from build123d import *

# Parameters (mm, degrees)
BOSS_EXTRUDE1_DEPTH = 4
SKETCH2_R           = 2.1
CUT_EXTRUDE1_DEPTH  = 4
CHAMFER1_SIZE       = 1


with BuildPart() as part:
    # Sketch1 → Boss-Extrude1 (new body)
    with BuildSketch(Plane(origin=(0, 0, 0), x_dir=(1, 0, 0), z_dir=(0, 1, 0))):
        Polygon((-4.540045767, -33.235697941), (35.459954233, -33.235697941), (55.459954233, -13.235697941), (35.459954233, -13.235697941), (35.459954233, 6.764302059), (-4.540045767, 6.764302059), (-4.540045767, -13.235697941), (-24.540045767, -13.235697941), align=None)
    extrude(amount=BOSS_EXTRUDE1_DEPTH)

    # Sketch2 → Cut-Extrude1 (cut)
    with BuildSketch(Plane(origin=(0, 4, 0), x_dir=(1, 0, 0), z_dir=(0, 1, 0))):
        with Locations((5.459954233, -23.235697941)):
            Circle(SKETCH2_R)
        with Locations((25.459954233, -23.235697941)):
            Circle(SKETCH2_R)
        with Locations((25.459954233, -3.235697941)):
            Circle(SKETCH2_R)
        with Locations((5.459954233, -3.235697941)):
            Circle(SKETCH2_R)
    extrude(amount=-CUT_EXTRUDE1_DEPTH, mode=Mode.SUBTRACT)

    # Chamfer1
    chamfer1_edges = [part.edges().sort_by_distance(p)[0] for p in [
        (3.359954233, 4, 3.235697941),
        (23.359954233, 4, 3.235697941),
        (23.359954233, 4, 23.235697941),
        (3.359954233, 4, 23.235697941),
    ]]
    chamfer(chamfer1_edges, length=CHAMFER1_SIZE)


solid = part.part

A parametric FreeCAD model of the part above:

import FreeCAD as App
import Part
import Sketcher
Q = App.Units.Quantity


def edges_at(feature, points):
    """Names of the edges that pass closest to the given points."""
    edges = feature.Shape.Edges
    near = lambda p: min(range(len(edges)), key=lambda i: edges[i].distToShape(Part.Vertex(*p))[0])
    return sorted({f"Edge{near(p) + 1}" for p in points})

doc = App.newDocument("Part")
params = doc.addObject("Spreadsheet::Sheet", "Params")
for row, (alias, value) in enumerate([
    ("sketch1_width", "40 mm"),
    ("sketch1_width2", "20 mm"),
    ("pad1_length", "4 mm"),
    ("sketch2_diameter", "4.2 mm"),
    ("pocket1_length", "4 mm"),
    ("chamfer_size", "1 mm"),
], start=1):
    params.set(f"A{row}", alias)
    params.set(f"B{row}", "=" + value)
    params.setAlias(f"B{row}", alias)

body = doc.addObject("PartDesign::Body", "Body")

sketch1 = body.newObject("Sketcher::SketchObject", "Sketch")
sketch1.AttachmentSupport = (doc.getObject("XZ_Plane"), [""])
sketch1.MapMode = "FlatFace"
sketch1.addGeometry([
    Part.LineSegment(App.Vector(-5, 33, 0), App.Vector(35, 33, 0)),
    Part.LineSegment(App.Vector(35, 33, 0), App.Vector(55, 13, 0)),
    Part.LineSegment(App.Vector(55, 13, 0), App.Vector(35, 13, 0)),
    Part.LineSegment(App.Vector(35, 13, 0), App.Vector(35, -7, 0)),
    Part.LineSegment(App.Vector(35, -7, 0), App.Vector(-5, -7, 0)),
    Part.LineSegment(App.Vector(-5, -7, 0), App.Vector(-5, 13, 0)),
    Part.LineSegment(App.Vector(-5, 13, 0), App.Vector(-25, 13, 0)),
    Part.LineSegment(App.Vector(-25, 13, 0), App.Vector(-5, 33, 0)),
], False)
sketch1.addConstraint([
    Sketcher.Constraint("Coincident", 0, 2, 1, 1),
    Sketcher.Constraint("Coincident", 1, 2, 2, 1),
    Sketcher.Constraint("Coincident", 2, 2, 3, 1),
    Sketcher.Constraint("Coincident", 3, 2, 4, 1),
    Sketcher.Constraint("Coincident", 4, 2, 5, 1),
    Sketcher.Constraint("Coincident", 5, 2, 6, 1),
    Sketcher.Constraint("Coincident", 6, 2, 7, 1),
    Sketcher.Constraint("Coincident", 7, 2, 0, 1),
    Sketcher.Constraint("Horizontal", 0),
    Sketcher.Constraint("Horizontal", 2),
    Sketcher.Constraint("Vertical", 3),
    Sketcher.Constraint("Horizontal", 4),
    Sketcher.Constraint("Vertical", 5),
    Sketcher.Constraint("Horizontal", 6),
    Sketcher.Constraint("Perpendicular", 1, 7),
    Sketcher.Constraint("Horizontal", 2, 2, 5, 2),
    Sketcher.Constraint("Vertical", 0, 2, 2, 2),
    Sketcher.Constraint("Vertical", 5, 2, 7, 2),
    Sketcher.Constraint("Equal", 2, 6),
    Sketcher.Constraint("Equal", 6, 3),
    Sketcher.Constraint("DistanceX", 0, 1, 0, 2, Q("40 mm")),
    Sketcher.Constraint("DistanceX", 2, 2, 2, 1, Q("20 mm")),
    Sketcher.Constraint("DistanceX", -1, 1, 0, 2, Q("35.459954 mm")),
    Sketcher.Constraint("DistanceY", -1, 1, 0, 2, Q("33.235698 mm")),
])
sketch1.setExpression("Constraints[20]", "Params.sketch1_width")
sketch1.setExpression("Constraints[21]", "Params.sketch1_width2")
pad1 = body.newObject("PartDesign::Pad", "Pad")
pad1.Profile = sketch1
pad1.setExpression("Length", "Params.pad1_length")
pad1.Reversed = True

sketch2 = body.newObject("Sketcher::SketchObject", "Sketch001")
sketch2.AttachmentSupport = (doc.getObject("XZ_Plane"), [""])
sketch2.MapMode = "FlatFace"
sketch2.AttachmentOffset = App.Placement(App.Vector(0, 0, -4), App.Rotation())
sketch2.addGeometry([
    Part.Circle(App.Vector(5.5, 23.2, 0), App.Vector(0, 0, 1), 2.1),
    Part.Circle(App.Vector(25.5, 23.2, 0), App.Vector(0, 0, 1), 2.1),
    Part.Circle(App.Vector(25.5, 3.2, 0), App.Vector(0, 0, 1), 2.1),
    Part.Circle(App.Vector(5.5, 3.2, 0), App.Vector(0, 0, 1), 2.1),
], False)
sketch2.addConstraint([
    Sketcher.Constraint("Equal", 0, 1),
    Sketcher.Constraint("Equal", 1, 2),
    Sketcher.Constraint("Equal", 2, 3),
    Sketcher.Constraint("Horizontal", 0, 3, 1, 3),
    Sketcher.Constraint("Horizontal", 2, 3, 3, 3),
    Sketcher.Constraint("Vertical", 1, 3, 2, 3),
    Sketcher.Constraint("Vertical", 0, 3, 3, 3),
    Sketcher.Constraint("Diameter", 0, Q("4.2 mm")),
    Sketcher.Constraint("DistanceX", 0, 3, 1, 3, Q("20 mm")),
    Sketcher.Constraint("DistanceY", 2, 3, 1, 3, Q("20 mm")),
    Sketcher.Constraint("DistanceX", -1, 1, 0, 3, Q("5.459954 mm")),
    Sketcher.Constraint("DistanceY", -1, 1, 0, 3, Q("23.235698 mm")),
])
sketch2.setExpression("Constraints[7]", "Params.sketch2_diameter")
pocket1 = body.newObject("PartDesign::Pocket", "Pocket")
pocket1.Profile = sketch2
pocket1.setExpression("Length", "Params.pocket1_length")
pocket1.Reversed = True
doc.recompute()

chamfer = body.newObject("PartDesign::Chamfer", "Chamfer")
chamfer.Base = (pocket1, edges_at(pocket1, [
    (3.36, 4, 3.236),
    (23.36, 4, 3.236),
    (23.36, 4, 23.236),
    (3.36, 4, 23.236),
]))
chamfer.setExpression("Size", "Params.chamfer_size")

doc.recompute()
